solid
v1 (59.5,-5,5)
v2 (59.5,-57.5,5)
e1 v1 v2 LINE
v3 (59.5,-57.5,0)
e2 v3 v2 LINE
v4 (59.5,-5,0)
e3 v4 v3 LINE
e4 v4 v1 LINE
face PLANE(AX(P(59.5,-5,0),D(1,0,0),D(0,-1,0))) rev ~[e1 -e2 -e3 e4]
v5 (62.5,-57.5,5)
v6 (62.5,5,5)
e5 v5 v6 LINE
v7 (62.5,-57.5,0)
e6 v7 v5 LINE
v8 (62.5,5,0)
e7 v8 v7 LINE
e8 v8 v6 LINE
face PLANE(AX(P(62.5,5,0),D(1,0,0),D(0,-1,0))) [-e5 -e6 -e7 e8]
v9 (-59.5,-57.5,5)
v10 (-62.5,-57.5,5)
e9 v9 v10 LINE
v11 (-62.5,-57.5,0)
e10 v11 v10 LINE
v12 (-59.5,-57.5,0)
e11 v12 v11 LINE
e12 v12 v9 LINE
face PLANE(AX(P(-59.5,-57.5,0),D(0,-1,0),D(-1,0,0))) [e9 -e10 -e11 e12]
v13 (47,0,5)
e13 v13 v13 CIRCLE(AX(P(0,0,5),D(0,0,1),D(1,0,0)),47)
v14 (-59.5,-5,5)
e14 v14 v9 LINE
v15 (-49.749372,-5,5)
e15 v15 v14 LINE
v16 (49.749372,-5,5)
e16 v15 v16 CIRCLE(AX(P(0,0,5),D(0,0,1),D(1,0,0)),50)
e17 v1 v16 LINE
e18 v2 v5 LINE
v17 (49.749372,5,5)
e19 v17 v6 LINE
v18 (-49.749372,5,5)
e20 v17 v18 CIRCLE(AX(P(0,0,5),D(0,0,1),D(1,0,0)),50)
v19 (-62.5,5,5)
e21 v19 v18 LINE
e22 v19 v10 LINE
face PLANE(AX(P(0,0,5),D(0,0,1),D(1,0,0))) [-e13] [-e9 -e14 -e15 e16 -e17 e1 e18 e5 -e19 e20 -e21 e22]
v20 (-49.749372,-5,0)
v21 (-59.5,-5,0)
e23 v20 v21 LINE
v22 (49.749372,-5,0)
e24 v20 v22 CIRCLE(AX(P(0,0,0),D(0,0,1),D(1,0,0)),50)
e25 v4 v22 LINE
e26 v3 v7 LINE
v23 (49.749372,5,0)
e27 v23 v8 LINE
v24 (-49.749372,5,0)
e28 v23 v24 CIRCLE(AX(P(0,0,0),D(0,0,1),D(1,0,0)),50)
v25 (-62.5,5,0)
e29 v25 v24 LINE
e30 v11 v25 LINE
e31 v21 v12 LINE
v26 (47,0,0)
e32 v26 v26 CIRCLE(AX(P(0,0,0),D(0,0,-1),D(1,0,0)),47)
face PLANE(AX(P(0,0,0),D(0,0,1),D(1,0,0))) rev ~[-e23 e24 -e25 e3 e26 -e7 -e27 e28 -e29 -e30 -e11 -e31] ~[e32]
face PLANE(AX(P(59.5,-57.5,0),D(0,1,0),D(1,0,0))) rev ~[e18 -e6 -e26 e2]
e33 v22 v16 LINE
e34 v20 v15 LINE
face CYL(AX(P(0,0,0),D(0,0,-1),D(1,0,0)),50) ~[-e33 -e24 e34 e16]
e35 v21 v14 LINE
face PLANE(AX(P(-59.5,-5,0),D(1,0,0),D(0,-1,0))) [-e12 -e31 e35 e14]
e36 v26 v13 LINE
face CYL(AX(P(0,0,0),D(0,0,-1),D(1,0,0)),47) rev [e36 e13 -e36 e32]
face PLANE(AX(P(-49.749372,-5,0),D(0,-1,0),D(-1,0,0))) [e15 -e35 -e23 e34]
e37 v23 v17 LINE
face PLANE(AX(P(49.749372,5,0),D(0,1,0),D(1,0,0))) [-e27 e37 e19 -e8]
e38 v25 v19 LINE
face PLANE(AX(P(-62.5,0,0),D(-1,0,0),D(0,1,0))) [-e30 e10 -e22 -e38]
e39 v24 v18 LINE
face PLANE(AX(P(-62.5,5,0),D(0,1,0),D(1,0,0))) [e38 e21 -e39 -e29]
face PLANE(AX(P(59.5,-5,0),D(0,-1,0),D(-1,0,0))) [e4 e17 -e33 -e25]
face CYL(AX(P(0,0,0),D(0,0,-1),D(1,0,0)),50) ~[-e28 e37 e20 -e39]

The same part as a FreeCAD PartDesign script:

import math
import FreeCAD as App
import Part
import Sketcher
from FreeCAD import Vector
Q = App.Units.Quantity

doc = App.newDocument("Part")
body = doc.addObject("PartDesign::Body", "Body")

# Sketch on XY plane
sketch1 = body.newObject("Sketcher::SketchObject", "Sketch")
sketch1.AttachmentSupport = (doc.getObject("XY_Plane"), [""])
sketch1.MapMode = "FlatFace"
sketch1.addGeometry([
    Part.LineSegment(Vector(49.7, -5, 0), Vector(59.5, -5, 0)),  # 0
    Part.LineSegment(Vector(59.5, -5, 0), Vector(59.5, -57.5, 0)),  # 1
    Part.LineSegment(Vector(59.5, -57.5, 0), Vector(62.5, -57.5, 0)),  # 2
    Part.LineSegment(Vector(62.5, -57.5, 0), Vector(62.5, 5, 0)),  # 3
    Part.LineSegment(Vector(62.5, 5, 0), Vector(49.7, 5, 0)),  # 4
    Part.ArcOfCircle(Part.Circle(Vector(0, 0, 0), Vector(0, 0, 1), 50), math.radians(6), math.radians(174)),  # 5
    Part.LineSegment(Vector(-49.7, 5, 0), Vector(-62.5, 5, 0)),  # 6
    Part.LineSegment(Vector(-62.5, 5, 0), Vector(-62.5, -57.5, 0)),  # 7
    Part.LineSegment(Vector(-62.5, -57.5, 0), Vector(-59.5, -57.5, 0)),  # 8
    Part.LineSegment(Vector(-59.5, -57.5, 0), Vector(-59.5, -5, 0)),  # 9
    Part.LineSegment(Vector(-59.5, -5, 0), Vector(-49.7, -5, 0)),  # 10
    Part.ArcOfCircle(Part.Circle(Vector(0, 0, 0), Vector(0, 0, 1), 50), math.radians(-174), math.radians(-6)),  # 11
    Part.Circle(Vector(0, 0, 0), Vector(0, 0, 1), 47),  # 12
], False)
sketch1.addConstraint([
    Sketcher.Constraint("Coincident", 0, 2, 1, 1),
    Sketcher.Constraint("Coincident", 1, 2, 2, 1),
    Sketcher.Constraint("Coincident", 2, 2, 3, 1),
    Sketcher.Constraint("Coincident", 3, 2, 4, 1),
    Sketcher.Constraint("Coincident", 4, 2, 5, 1),
    Sketcher.Constraint("Coincident", 5, 2, 6, 1),
    Sketcher.Constraint("Coincident", 6, 2, 7, 1),
    Sketcher.Constraint("Coincident", 7, 2, 8, 1),
    Sketcher.Constraint("Coincident", 8, 2, 9, 1),
    Sketcher.Constraint("Coincident", 9, 2, 10, 1),
    Sketcher.Constraint("Coincident", 10, 2, 11, 1),
    Sketcher.Constraint("Coincident", 11, 2, 0, 1),
    Sketcher.Constraint("Horizontal", 0),
    Sketcher.Constraint("Vertical", 1),
    Sketcher.Constraint("Horizontal", 2),
    Sketcher.Constraint("Vertical", 3),
    Sketcher.Constraint("Horizontal", 4),
    Sketcher.Constraint("Horizontal", 6),
    Sketcher.Constraint("Vertical", 7),
    Sketcher.Constraint("Horizontal", 8),
    Sketcher.Constraint("Vertical", 9),
    Sketcher.Constraint("Horizontal", 10),
    Sketcher.Constraint("Coincident", 5, 3, -1, 1),
    Sketcher.Constraint("Coincident", 11, 3, -1, 1),
    Sketcher.Constraint("Coincident", 12, 3, -1, 1),
    Sketcher.Constraint("Equal", 5, 11),
    Sketcher.Constraint("Symmetric", 3, 2, 6, 2, -2),
    Sketcher.Constraint("Symmetric", 1, 2, 8, 2, -2),
    Sketcher.Constraint("Horizontal", 0, 2, 9, 2),
    Sketcher.Constraint("Vertical", 5, 2, 10, 2),
    Sketcher.Constraint("Diameter", 12, Q("94 mm")),
    Sketcher.Constraint("Radius", 5, Q("50 mm")),
    Sketcher.Constraint("DistanceX", 2, 1, 2, 2, Q("3 mm")),
    Sketcher.Constraint("DistanceY", 0, 2, 3, 2, Q("10 mm")),
    Sketcher.Constraint("DistanceY", 1, 2, -1, 1, Q("57.5 mm")),
    Sketcher.Constraint("DistanceX", -1, 1, 0, 2, Q("59.5 mm")),
])
pad1 = body.newObject("PartDesign::Pad", "Pad")
pad1.Profile = sketch1
pad1.Length = 5

doc.recompute()
